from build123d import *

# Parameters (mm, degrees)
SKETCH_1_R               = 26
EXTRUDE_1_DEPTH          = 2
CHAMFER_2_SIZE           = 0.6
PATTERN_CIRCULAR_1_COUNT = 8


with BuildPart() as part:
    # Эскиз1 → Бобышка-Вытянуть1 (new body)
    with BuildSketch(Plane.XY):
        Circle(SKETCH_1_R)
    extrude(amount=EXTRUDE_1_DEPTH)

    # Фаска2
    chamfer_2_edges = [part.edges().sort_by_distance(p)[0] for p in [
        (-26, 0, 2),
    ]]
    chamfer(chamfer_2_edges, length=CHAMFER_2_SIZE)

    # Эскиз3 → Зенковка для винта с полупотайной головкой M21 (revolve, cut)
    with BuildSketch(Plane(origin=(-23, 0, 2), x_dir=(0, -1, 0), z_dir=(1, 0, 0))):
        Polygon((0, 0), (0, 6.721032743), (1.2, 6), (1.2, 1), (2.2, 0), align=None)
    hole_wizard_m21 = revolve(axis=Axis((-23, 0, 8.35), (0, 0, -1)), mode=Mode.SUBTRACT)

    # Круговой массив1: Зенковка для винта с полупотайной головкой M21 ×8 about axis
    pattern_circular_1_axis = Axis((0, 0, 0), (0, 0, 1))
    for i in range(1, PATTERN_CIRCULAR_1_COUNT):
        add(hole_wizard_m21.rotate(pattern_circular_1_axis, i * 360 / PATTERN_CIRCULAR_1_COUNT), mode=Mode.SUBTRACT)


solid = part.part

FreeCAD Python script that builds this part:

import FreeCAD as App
import Part
import Sketcher

V = App.Vector
Q = App.Units.Quantity


def edges_at(feature, points):
    """Names of the edges that pass closest to the given points."""
    edges = feature.Shape.Edges
    near = lambda p: min(range(len(edges)), key=lambda i: edges[i].distToShape(Part.Vertex(*p))[0])
    return sorted({f"Edge{near(p) + 1}" for p in points})


def add_polygon(sketch, points):
    """Adds a closed chain of lines whose ends are joined by coincident constraints."""
    first, n = sketch.GeometryCount, len(points)
    for a, b in zip(points, points[1:] + points[:1]):
        sketch.addGeometry(Part.LineSegment(App.Vector(*a, 0), App.Vector(*b, 0)), False)
    for i in range(n):
        sketch.addConstraint(Sketcher.Constraint("Coincident", first + i, 2, first + (i + 1) % n, 1))

doc = App.newDocument("Part")
params = doc.addObject("Spreadsheet::Sheet", "Params")
for row, (alias, value) in enumerate([
    ("sketch1_diameter", "52 mm"),
    ("pad1_length", "2 mm"),
    ("chamfer_size", "0.6 mm"),
    ("sketch2_height", "5 mm"),
    ("sketch2_width", "2.2 mm"),
    ("groove_angle", "360 deg"),
], start=1):
    params.set(f"A{row}", alias)
    params.set(f"B{row}", "=" + value)
    params.setAlias(f"B{row}", alias)

body = doc.addObject("PartDesign::Body", "Body")

# Sketch on XY plane
sketch1 = body.newObject("Sketcher::SketchObject", "Sketch")
sketch1.AttachmentSupport = (doc.getObject("XY_Plane"), [""])
sketch1.MapMode = "FlatFace"
sketch1.addGeometry(Part.Circle(V(0, 0, 0), V(0, 0, 1), 26), False)
sketch1.addConstraint([
    Sketcher.Constraint("Coincident", 0, 3, -1, 1),
    Sketcher.Constraint("Diameter", 0, Q("52 mm")),
])
sketch1.setExpression("Constraints[1]", "Params.sketch1_diameter")
pad1 = body.newObject("PartDesign::Pad", "Pad")
pad1.Profile = sketch1
pad1.setExpression("Length", "Params.pad1_length")
doc.recompute()

chamfer = body.newObject("PartDesign::Chamfer", "Chamfer")
chamfer.Base = (pad1, edges_at(pad1, [(-26, 0, 2)]))
chamfer.setExpression("Size", "Params.chamfer_size")

# Sketch on YZ plane
sketch2 = body.newObject("Sketcher::SketchObject", "Sketch001")
sketch2.AttachmentSupport = (doc.getObject("YZ_Plane"), [""])
sketch2.MapMode = "FlatFace"
sketch2.AttachmentOffset = App.Placement(V(0, 0, -23), App.Rotation())
add_polygon(sketch2, [(0, -4.721033), (0, 2), (-2.2, 2), (-1.2, 1), (-1.2, -4)])  # lines 0-4
sketch2.addConstraint([
    Sketcher.Constraint("Vertical", 0),
    Sketcher.Constraint("Horizontal", 1),
    Sketcher.Constraint("Vertical", 3),
    Sketcher.Constraint("PointOnObject", 0, 2, -2),
    Sketcher.Constraint("DistanceY", 3, 2, 3, 1, Q("5 mm")),
    Sketcher.Constraint("Angle", 2, Q("-45 deg")),
    Sketcher.Constraint("Angle", 4, Q("-31 deg")),
    Sketcher.Constraint("DistanceX", 1, 2, 1, 1, Q("2.2 mm")),
    Sketcher.Constraint("DistanceY", -1, 1, 0, 2, Q("2 mm")),
    Sketcher.Constraint("DistanceY", -1, 1, 2, 2, Q("1 mm")),
])
sketch2.setExpression("Constraints[9]", "Params.sketch2_height")
sketch2.setExpression("Constraints[12]", "Params.sketch2_width")
groove = body.newObject("PartDesign::Groove", "Groove")
groove.Profile = sketch2
groove.ReferenceAxis = (sketch2, ["V_Axis"])
groove.setExpression("Angle", "Params.groove_angle")
doc.recompute()

polarpattern = body.newObject("PartDesign::PolarPattern", "PolarPattern")
polarpattern.Originals = [groove]
polarpattern.Axis = (doc.getObject("Z_Axis"), [""])
polarpattern.Angle = 360
polarpattern.Occurrences = 8
body.Tip = polarpattern

doc.recompute()
